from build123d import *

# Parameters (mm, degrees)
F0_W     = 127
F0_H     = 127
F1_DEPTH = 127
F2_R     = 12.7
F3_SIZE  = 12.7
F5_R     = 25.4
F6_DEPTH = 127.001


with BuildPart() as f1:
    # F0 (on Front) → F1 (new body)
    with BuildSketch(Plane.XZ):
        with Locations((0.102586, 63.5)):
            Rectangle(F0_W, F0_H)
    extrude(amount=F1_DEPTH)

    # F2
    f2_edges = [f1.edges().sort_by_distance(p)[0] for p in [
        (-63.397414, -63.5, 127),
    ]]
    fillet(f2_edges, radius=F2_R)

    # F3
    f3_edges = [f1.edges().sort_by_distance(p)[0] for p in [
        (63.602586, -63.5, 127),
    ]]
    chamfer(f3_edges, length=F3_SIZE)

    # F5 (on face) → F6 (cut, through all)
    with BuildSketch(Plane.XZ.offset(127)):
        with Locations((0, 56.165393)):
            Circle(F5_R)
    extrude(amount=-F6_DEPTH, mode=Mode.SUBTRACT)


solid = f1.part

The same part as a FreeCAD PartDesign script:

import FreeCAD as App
import Part
import Sketcher

V = App.Vector
Q = App.Units.Quantity


def edges_at(feature, points):
    """Names of the edges that pass closest to the given points."""
    edges = feature.Shape.Edges
    near = lambda p: min(range(len(edges)), key=lambda i: edges[i].distToShape(Part.Vertex(*p))[0])
    return sorted({f"Edge{near(p) + 1}" for p in points})

doc = App.newDocument("Part")
body = doc.addObject("PartDesign::Body", "Body")

sketch1 = doc.addObject("Sketcher::SketchObject", "Sketch")
body.addObject(sketch1)
sketch1.AttachmentSupport = (doc.XZ_Plane, [""])
sketch1.MapMode = "FlatFace"
sketch1.addGeometry([
    Part.LineSegment(V(-63.397414, 127, 0), V(-63.397414, 0, 0)),
    Part.LineSegment(V(-63.397414, 0, 0), V(63.602586, 0, 0)),
    Part.LineSegment(V(63.602586, 0, 0), V(63.602586, 127, 0)),
    Part.LineSegment(V(63.602586, 127, 0), V(-63.397414, 127, 0)),
], False)
sketch1.addConstraint([
    Sketcher.Constraint("Coincident", 0, 2, 1, 1),
    Sketcher.Constraint("Coincident", 1, 2, 2, 1),
    Sketcher.Constraint("Coincident", 2, 2, 3, 1),
    Sketcher.Constraint("Coincident", 3, 2, 0, 1),
    Sketcher.Constraint("Vertical", 0),
    Sketcher.Constraint("Horizontal", 1),
    Sketcher.Constraint("Vertical", 2),
    Sketcher.Constraint("Horizontal", 3),
    Sketcher.Constraint("PointOnObject", 0, 2, -1),
    Sketcher.Constraint("Equal", 3, 0),
    Sketcher.Constraint("DistanceX", 1, 1, 1, 2, Q("5 in")),
    Sketcher.Constraint("DistanceX", 0, 2, -1, 1, Q("63.397414 mm")),
])
pad1 = doc.addObject("PartDesign::Pad", "Pad")
body.addObject(pad1)
pad1.Profile = sketch1
pad1.Length = Q("5 in")
doc.recompute()

fillet = doc.addObject("PartDesign::Fillet", "Fillet")
body.addObject(fillet)
fillet.Base = (pad1, edges_at(pad1, [(-63.397, -63.5, 127)]))
fillet.Radius = Q("0.5 in")
doc.recompute()

chamfer = doc.addObject("PartDesign::Chamfer", "Chamfer")
body.addObject(chamfer)
chamfer.Base = (fillet, edges_at(fillet, [(63.603, -63.5, 127)]))
chamfer.Size = Q("0.5 in")

sketch2 = doc.addObject("Sketcher::SketchObject", "Sketch001")
body.addObject(sketch2)
sketch2.AttachmentSupport = (doc.XZ_Plane, [""])
sketch2.MapMode = "FlatFace"
sketch2.AttachmentOffset = App.Placement(V(0, 0, 5 * 25.4), App.Rotation())
sketch2.addGeometry(Part.Circle(V(0, 56.165393, 0), V(0, 0, 1), 25.4), False)
sketch2.addConstraint([
    Sketcher.Constraint("PointOnObject", 0, 3, -2),
    Sketcher.Constraint("Diameter", 0, Q("2 in")),
    Sketcher.Constraint("DistanceY", -1, 1, 0, 3, Q("56.165393 mm")),
])
pocket1 = doc.addObject("PartDesign::Pocket", "Pocket")
body.addObject(pocket1)
pocket1.Profile = sketch2
pocket1.Type = "ThroughAll"

doc.recompute()
